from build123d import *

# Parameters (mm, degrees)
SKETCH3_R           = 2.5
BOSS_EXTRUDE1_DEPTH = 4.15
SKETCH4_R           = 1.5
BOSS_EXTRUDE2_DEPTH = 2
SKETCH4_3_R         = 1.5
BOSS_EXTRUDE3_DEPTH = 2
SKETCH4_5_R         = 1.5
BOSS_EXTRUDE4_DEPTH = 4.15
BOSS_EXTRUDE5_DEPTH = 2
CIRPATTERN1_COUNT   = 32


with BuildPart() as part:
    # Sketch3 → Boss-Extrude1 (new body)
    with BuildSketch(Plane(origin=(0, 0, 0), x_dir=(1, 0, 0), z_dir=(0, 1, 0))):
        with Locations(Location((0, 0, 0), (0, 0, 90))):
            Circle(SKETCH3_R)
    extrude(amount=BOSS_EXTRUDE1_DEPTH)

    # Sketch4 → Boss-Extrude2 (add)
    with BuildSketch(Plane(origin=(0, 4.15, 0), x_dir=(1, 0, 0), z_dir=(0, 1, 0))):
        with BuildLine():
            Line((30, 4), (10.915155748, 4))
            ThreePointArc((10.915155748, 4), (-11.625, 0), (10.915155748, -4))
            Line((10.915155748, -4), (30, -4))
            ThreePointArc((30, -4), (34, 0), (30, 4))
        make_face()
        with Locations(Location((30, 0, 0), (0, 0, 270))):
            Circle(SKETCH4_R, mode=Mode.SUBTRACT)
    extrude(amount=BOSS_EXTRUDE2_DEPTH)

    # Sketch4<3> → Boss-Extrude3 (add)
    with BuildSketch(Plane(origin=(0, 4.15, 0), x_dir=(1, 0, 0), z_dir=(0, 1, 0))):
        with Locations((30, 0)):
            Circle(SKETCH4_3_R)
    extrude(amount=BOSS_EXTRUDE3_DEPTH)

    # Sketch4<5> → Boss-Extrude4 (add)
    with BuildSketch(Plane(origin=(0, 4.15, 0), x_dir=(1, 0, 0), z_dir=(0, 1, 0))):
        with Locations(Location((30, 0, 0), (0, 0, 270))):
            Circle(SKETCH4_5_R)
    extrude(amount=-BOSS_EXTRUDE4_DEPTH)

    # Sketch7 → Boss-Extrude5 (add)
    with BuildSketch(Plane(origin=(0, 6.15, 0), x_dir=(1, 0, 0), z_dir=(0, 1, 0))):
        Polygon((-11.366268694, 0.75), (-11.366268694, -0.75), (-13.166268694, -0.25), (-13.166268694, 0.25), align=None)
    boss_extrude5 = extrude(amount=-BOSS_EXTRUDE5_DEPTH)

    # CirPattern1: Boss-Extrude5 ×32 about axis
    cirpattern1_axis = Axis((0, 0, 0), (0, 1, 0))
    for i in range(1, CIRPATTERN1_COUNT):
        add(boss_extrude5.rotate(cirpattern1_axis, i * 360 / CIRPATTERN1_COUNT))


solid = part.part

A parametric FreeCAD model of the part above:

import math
import FreeCAD as App
import Part
import Sketcher

V = App.Vector

doc = App.newDocument("Part")
params = doc.addObject("Spreadsheet::Sheet", "Params")
for row, (alias, value) in enumerate([
    ("sketch1_diameter", "5 mm"),
    ("pad1_length", "4.15 mm"),
    ("sketch2_diameter", "3 mm"),
    ("sketch2_radius", "4 mm"),
    ("pad2_length", "2 mm"),
    ("sketch3_diameter", "3 mm"),
    ("pad3_length", "2 mm"),
    ("sketch4_diameter", "3 mm"),
    ("pad4_length", "4.15 mm"),
    ("sketch5_height", "1.5 mm"),
    ("sketch5_height2", "0.5 mm"),
    ("pad5_length", "2 mm"),
], start=1):
    params.set(f"A{row}", alias)
    params.set(f"B{row}", "=" + value)
    params.setAlias(f"B{row}", alias)

body = doc.addObject("PartDesign::Body", "Body")

# Sketch on XZ plane
sketch1 = doc.addObject("Sketcher::SketchObject", "Sketch")
body.addObject(sketch1)
sketch1.AttachmentSupport = (doc.XZ_Plane, [""])
sketch1.MapMode = "FlatFace"
sketch1.addGeometry(Part.Circle(V(0, 0, 0), V(0, 0, 1), 2.5), False)
sketch1.addConstraint(Sketcher.Constraint("Coincident", 0, 3, -1, 1))
sketch1.addConstraint(Sketcher.Constraint("Diameter", 0, 5.0))
sketch1.setExpression("Constraints[1]", "Params.sketch1_diameter")
pad1 = doc.addObject("PartDesign::Pad", "Pad")
body.addObject(pad1)
pad1.Profile = sketch1
pad1.setExpression("Length", "Params.pad1_length")
pad1.Reversed = True

# Sketch on XZ plane
sketch2 = doc.addObject("Sketcher::SketchObject", "Sketch001")
body.addObject(sketch2)
sketch2.AttachmentSupport = (doc.XZ_Plane, [""])
sketch2.MapMode = "FlatFace"
sketch2.AttachmentOffset = App.Placement(V(0, 0, -4.15), App.Rotation())
sketch2.addGeometry(Part.LineSegment(V(30, -4, 0), V(10.915156, -4, 0)), False)
sketch2.addGeometry(Part.ArcOfCircle(Part.Circle(V(0, 0, 0), V(0, 0, 1), 11.625), math.radians(20.126013), math.radians(339.873987)), False)
sketch2.addGeometry(Part.LineSegment(V(10.915156, 4, 0), V(30, 4, 0)), False)
sketch2.addGeometry(Part.ArcOfCircle(Part.Circle(V(30, 0, 0), V(0, 0, 1), 4), math.radians(-90), math.radians(90)), False)
sketch2.addGeometry(Part.Circle(V(30, 0, 0), V(0, 0, 1), 1.5), False)
sketch2.addConstraint(Sketcher.Constraint("Coincident", 0, 2, 1, 2))
sketch2.addConstraint(Sketcher.Constraint("Coincident", 1, 1, 2, 1))
sketch2.addConstraint(Sketcher.Constraint("Tangent", 2, 2, 3, 2))
sketch2.addConstraint(Sketcher.Constraint("Tangent", 3, 1, 0, 1))
sketch2.addConstraint(Sketcher.Constraint("Horizontal", 0))
sketch2.addConstraint(Sketcher.Constraint("Horizontal", 2))
sketch2.addConstraint(Sketcher.Constraint("Coincident", 1, 3, -1, 1))
sketch2.addConstraint(Sketcher.Constraint("Coincident", 4, 3, 3, 3))
sketch2.addConstraint(Sketcher.Constraint("PointOnObject", 3, 3, -1))
sketch2.addConstraint(Sketcher.Constraint("Diameter", 4, 3.0))
sketch2.addConstraint(Sketcher.Constraint("Radius", 3, 4.0))
sketch2.addConstraint(Sketcher.Constraint("DistanceX", -1, 1, 3, 3, 30.0))
sketch2.addConstraint(Sketcher.Constraint("Radius", 1, 11.625))
sketch2.setExpression("Constraints[9]", "Params.sketch2_diameter")
sketch2.setExpression("Constraints[10]", "Params.sketch2_radius")
pad2 = doc.addObject("PartDesign::Pad", "Pad001")
body.addObject(pad2)
pad2.Profile = sketch2
pad2.setExpression("Length", "Params.pad2_length")
pad2.Reversed = True

# Sketch on XZ plane
sketch3 = doc.addObject("Sketcher::SketchObject", "Sketch002")
body.addObject(sketch3)
sketch3.AttachmentSupport = (doc.XZ_Plane, [""])
sketch3.MapMode = "FlatFace"
sketch3.AttachmentOffset = App.Placement(V(0, 0, -4.15), App.Rotation())
sketch3.addGeometry(Part.Circle(V(30, 0, 0), V(0, 0, 1), 1.5), False)
sketch3.addConstraint(Sketcher.Constraint("PointOnObject", 0, 3, -1))
sketch3.addConstraint(Sketcher.Constraint("Diameter", 0, 3.0))
sketch3.addConstraint(Sketcher.Constraint("DistanceX", -1, 1, 0, 3, 30.0))
sketch3.setExpression("Constraints[1]", "Params.sketch3_diameter")
pad3 = doc.addObject("PartDesign::Pad", "Pad002")
body.addObject(pad3)
pad3.Profile = sketch3
pad3.setExpression("Length", "Params.pad3_length")
pad3.Reversed = True

# Sketch on XZ plane
sketch4 = doc.addObject("Sketcher::SketchObject", "Sketch003")
body.addObject(sketch4)
sketch4.AttachmentSupport = (doc.XZ_Plane, [""])
sketch4.MapMode = "FlatFace"
sketch4.AttachmentOffset = App.Placement(V(0, 0, -4.15), App.Rotation())
sketch4.addGeometry(Part.Circle(V(30, 0, 0), V(0, 0, 1), 1.5), False)
sketch4.addConstraint(Sketcher.Constraint("PointOnObject", 0, 3, -1))
sketch4.addConstraint(Sketcher.Constraint("Diameter", 0, 3.0))
sketch4.addConstraint(Sketcher.Constraint("DistanceX", -1, 1, 0, 3, 30.0))
sketch4.setExpression("Constraints[1]", "Params.sketch4_diameter")
pad4 = doc.addObject("PartDesign::Pad", "Pad003")
body.addObject(pad4)
pad4.Profile = sketch4
pad4.setExpression("Length", "Params.pad4_length")

# Sketch on XZ plane
sketch5 = doc.addObject("Sketcher::SketchObject", "Sketch004")
body.addObject(sketch5)
sketch5.AttachmentSupport = (doc.XZ_Plane, [""])
sketch5.MapMode = "FlatFace"
sketch5.AttachmentOffset = App.Placement(V(0, 0, -6.15), App.Rotation())
sketch5.addGeometry(Part.LineSegment(V(-11.366269, 0.75, 0), V(-11.366269, -0.75, 0)), False)
sketch5.addGeometry(Part.LineSegment(V(-11.366269, -0.75, 0), V(-13.166269, -0.25, 0)), False)
sketch5.addGeometry(Part.LineSegment(V(-13.166269, -0.25, 0), V(-13.166269, 0.25, 0)), False)
sketch5.addGeometry(Part.LineSegment(V(-13.166269, 0.25, 0), V(-11.366269, 0.75, 0)), False)
sketch5.addConstraint(Sketcher.Constraint("Coincident", 0, 2, 1, 1))
sketch5.addConstraint(Sketcher.Constraint("Coincident", 1, 2, 2, 1))
sketch5.addConstraint(Sketcher.Constraint("Coincident", 2, 2, 3, 1))
sketch5.addConstraint(Sketcher.Constraint("Coincident", 3, 2, 0, 1))
sketch5.addConstraint(Sketcher.Constraint("Vertical", 0))
sketch5.addConstraint(Sketcher.Constraint("Vertical", 2))
sketch5.addConstraint(Sketcher.Constraint("Equal", 1, 3))
sketch5.addConstraint(Sketcher.Constraint("DistanceY", 0, 2, 0, 1, 1.5))
sketch5.addConstraint(Sketcher.Constraint("DistanceY", 2, 1, 2, 2, 0.5))
sketch5.addConstraint(Sketcher.Constraint("DistanceX", 1, 2, 0, 2, 1.8))
sketch5.addConstraint(Sketcher.Constraint("DistanceY", 0, 2, -1, 1, 0.75))
sketch5.addConstraint(Sketcher.Constraint("DistanceX", 0, 2, -1, 1, 11.366269))
sketch5.setExpression("Constraints[7]", "Params.sketch5_height")
sketch5.setExpression("Constraints[8]", "Params.sketch5_height2")
pad5 = doc.addObject("PartDesign::Pad", "Pad004")
body.addObject(pad5)
pad5.Profile = sketch5
pad5.setExpression("Length", "Params.pad5_length")
doc.recompute()

polarpattern = doc.addObject("PartDesign::PolarPattern", "PolarPattern")
body.addObject(polarpattern)
polarpattern.Originals = [pad5]
polarpattern.Axis = (doc.Y_Axis, [""])
polarpattern.Angle = 360
polarpattern.Occurrences = 32
body.Tip = polarpattern

doc.recompute()
